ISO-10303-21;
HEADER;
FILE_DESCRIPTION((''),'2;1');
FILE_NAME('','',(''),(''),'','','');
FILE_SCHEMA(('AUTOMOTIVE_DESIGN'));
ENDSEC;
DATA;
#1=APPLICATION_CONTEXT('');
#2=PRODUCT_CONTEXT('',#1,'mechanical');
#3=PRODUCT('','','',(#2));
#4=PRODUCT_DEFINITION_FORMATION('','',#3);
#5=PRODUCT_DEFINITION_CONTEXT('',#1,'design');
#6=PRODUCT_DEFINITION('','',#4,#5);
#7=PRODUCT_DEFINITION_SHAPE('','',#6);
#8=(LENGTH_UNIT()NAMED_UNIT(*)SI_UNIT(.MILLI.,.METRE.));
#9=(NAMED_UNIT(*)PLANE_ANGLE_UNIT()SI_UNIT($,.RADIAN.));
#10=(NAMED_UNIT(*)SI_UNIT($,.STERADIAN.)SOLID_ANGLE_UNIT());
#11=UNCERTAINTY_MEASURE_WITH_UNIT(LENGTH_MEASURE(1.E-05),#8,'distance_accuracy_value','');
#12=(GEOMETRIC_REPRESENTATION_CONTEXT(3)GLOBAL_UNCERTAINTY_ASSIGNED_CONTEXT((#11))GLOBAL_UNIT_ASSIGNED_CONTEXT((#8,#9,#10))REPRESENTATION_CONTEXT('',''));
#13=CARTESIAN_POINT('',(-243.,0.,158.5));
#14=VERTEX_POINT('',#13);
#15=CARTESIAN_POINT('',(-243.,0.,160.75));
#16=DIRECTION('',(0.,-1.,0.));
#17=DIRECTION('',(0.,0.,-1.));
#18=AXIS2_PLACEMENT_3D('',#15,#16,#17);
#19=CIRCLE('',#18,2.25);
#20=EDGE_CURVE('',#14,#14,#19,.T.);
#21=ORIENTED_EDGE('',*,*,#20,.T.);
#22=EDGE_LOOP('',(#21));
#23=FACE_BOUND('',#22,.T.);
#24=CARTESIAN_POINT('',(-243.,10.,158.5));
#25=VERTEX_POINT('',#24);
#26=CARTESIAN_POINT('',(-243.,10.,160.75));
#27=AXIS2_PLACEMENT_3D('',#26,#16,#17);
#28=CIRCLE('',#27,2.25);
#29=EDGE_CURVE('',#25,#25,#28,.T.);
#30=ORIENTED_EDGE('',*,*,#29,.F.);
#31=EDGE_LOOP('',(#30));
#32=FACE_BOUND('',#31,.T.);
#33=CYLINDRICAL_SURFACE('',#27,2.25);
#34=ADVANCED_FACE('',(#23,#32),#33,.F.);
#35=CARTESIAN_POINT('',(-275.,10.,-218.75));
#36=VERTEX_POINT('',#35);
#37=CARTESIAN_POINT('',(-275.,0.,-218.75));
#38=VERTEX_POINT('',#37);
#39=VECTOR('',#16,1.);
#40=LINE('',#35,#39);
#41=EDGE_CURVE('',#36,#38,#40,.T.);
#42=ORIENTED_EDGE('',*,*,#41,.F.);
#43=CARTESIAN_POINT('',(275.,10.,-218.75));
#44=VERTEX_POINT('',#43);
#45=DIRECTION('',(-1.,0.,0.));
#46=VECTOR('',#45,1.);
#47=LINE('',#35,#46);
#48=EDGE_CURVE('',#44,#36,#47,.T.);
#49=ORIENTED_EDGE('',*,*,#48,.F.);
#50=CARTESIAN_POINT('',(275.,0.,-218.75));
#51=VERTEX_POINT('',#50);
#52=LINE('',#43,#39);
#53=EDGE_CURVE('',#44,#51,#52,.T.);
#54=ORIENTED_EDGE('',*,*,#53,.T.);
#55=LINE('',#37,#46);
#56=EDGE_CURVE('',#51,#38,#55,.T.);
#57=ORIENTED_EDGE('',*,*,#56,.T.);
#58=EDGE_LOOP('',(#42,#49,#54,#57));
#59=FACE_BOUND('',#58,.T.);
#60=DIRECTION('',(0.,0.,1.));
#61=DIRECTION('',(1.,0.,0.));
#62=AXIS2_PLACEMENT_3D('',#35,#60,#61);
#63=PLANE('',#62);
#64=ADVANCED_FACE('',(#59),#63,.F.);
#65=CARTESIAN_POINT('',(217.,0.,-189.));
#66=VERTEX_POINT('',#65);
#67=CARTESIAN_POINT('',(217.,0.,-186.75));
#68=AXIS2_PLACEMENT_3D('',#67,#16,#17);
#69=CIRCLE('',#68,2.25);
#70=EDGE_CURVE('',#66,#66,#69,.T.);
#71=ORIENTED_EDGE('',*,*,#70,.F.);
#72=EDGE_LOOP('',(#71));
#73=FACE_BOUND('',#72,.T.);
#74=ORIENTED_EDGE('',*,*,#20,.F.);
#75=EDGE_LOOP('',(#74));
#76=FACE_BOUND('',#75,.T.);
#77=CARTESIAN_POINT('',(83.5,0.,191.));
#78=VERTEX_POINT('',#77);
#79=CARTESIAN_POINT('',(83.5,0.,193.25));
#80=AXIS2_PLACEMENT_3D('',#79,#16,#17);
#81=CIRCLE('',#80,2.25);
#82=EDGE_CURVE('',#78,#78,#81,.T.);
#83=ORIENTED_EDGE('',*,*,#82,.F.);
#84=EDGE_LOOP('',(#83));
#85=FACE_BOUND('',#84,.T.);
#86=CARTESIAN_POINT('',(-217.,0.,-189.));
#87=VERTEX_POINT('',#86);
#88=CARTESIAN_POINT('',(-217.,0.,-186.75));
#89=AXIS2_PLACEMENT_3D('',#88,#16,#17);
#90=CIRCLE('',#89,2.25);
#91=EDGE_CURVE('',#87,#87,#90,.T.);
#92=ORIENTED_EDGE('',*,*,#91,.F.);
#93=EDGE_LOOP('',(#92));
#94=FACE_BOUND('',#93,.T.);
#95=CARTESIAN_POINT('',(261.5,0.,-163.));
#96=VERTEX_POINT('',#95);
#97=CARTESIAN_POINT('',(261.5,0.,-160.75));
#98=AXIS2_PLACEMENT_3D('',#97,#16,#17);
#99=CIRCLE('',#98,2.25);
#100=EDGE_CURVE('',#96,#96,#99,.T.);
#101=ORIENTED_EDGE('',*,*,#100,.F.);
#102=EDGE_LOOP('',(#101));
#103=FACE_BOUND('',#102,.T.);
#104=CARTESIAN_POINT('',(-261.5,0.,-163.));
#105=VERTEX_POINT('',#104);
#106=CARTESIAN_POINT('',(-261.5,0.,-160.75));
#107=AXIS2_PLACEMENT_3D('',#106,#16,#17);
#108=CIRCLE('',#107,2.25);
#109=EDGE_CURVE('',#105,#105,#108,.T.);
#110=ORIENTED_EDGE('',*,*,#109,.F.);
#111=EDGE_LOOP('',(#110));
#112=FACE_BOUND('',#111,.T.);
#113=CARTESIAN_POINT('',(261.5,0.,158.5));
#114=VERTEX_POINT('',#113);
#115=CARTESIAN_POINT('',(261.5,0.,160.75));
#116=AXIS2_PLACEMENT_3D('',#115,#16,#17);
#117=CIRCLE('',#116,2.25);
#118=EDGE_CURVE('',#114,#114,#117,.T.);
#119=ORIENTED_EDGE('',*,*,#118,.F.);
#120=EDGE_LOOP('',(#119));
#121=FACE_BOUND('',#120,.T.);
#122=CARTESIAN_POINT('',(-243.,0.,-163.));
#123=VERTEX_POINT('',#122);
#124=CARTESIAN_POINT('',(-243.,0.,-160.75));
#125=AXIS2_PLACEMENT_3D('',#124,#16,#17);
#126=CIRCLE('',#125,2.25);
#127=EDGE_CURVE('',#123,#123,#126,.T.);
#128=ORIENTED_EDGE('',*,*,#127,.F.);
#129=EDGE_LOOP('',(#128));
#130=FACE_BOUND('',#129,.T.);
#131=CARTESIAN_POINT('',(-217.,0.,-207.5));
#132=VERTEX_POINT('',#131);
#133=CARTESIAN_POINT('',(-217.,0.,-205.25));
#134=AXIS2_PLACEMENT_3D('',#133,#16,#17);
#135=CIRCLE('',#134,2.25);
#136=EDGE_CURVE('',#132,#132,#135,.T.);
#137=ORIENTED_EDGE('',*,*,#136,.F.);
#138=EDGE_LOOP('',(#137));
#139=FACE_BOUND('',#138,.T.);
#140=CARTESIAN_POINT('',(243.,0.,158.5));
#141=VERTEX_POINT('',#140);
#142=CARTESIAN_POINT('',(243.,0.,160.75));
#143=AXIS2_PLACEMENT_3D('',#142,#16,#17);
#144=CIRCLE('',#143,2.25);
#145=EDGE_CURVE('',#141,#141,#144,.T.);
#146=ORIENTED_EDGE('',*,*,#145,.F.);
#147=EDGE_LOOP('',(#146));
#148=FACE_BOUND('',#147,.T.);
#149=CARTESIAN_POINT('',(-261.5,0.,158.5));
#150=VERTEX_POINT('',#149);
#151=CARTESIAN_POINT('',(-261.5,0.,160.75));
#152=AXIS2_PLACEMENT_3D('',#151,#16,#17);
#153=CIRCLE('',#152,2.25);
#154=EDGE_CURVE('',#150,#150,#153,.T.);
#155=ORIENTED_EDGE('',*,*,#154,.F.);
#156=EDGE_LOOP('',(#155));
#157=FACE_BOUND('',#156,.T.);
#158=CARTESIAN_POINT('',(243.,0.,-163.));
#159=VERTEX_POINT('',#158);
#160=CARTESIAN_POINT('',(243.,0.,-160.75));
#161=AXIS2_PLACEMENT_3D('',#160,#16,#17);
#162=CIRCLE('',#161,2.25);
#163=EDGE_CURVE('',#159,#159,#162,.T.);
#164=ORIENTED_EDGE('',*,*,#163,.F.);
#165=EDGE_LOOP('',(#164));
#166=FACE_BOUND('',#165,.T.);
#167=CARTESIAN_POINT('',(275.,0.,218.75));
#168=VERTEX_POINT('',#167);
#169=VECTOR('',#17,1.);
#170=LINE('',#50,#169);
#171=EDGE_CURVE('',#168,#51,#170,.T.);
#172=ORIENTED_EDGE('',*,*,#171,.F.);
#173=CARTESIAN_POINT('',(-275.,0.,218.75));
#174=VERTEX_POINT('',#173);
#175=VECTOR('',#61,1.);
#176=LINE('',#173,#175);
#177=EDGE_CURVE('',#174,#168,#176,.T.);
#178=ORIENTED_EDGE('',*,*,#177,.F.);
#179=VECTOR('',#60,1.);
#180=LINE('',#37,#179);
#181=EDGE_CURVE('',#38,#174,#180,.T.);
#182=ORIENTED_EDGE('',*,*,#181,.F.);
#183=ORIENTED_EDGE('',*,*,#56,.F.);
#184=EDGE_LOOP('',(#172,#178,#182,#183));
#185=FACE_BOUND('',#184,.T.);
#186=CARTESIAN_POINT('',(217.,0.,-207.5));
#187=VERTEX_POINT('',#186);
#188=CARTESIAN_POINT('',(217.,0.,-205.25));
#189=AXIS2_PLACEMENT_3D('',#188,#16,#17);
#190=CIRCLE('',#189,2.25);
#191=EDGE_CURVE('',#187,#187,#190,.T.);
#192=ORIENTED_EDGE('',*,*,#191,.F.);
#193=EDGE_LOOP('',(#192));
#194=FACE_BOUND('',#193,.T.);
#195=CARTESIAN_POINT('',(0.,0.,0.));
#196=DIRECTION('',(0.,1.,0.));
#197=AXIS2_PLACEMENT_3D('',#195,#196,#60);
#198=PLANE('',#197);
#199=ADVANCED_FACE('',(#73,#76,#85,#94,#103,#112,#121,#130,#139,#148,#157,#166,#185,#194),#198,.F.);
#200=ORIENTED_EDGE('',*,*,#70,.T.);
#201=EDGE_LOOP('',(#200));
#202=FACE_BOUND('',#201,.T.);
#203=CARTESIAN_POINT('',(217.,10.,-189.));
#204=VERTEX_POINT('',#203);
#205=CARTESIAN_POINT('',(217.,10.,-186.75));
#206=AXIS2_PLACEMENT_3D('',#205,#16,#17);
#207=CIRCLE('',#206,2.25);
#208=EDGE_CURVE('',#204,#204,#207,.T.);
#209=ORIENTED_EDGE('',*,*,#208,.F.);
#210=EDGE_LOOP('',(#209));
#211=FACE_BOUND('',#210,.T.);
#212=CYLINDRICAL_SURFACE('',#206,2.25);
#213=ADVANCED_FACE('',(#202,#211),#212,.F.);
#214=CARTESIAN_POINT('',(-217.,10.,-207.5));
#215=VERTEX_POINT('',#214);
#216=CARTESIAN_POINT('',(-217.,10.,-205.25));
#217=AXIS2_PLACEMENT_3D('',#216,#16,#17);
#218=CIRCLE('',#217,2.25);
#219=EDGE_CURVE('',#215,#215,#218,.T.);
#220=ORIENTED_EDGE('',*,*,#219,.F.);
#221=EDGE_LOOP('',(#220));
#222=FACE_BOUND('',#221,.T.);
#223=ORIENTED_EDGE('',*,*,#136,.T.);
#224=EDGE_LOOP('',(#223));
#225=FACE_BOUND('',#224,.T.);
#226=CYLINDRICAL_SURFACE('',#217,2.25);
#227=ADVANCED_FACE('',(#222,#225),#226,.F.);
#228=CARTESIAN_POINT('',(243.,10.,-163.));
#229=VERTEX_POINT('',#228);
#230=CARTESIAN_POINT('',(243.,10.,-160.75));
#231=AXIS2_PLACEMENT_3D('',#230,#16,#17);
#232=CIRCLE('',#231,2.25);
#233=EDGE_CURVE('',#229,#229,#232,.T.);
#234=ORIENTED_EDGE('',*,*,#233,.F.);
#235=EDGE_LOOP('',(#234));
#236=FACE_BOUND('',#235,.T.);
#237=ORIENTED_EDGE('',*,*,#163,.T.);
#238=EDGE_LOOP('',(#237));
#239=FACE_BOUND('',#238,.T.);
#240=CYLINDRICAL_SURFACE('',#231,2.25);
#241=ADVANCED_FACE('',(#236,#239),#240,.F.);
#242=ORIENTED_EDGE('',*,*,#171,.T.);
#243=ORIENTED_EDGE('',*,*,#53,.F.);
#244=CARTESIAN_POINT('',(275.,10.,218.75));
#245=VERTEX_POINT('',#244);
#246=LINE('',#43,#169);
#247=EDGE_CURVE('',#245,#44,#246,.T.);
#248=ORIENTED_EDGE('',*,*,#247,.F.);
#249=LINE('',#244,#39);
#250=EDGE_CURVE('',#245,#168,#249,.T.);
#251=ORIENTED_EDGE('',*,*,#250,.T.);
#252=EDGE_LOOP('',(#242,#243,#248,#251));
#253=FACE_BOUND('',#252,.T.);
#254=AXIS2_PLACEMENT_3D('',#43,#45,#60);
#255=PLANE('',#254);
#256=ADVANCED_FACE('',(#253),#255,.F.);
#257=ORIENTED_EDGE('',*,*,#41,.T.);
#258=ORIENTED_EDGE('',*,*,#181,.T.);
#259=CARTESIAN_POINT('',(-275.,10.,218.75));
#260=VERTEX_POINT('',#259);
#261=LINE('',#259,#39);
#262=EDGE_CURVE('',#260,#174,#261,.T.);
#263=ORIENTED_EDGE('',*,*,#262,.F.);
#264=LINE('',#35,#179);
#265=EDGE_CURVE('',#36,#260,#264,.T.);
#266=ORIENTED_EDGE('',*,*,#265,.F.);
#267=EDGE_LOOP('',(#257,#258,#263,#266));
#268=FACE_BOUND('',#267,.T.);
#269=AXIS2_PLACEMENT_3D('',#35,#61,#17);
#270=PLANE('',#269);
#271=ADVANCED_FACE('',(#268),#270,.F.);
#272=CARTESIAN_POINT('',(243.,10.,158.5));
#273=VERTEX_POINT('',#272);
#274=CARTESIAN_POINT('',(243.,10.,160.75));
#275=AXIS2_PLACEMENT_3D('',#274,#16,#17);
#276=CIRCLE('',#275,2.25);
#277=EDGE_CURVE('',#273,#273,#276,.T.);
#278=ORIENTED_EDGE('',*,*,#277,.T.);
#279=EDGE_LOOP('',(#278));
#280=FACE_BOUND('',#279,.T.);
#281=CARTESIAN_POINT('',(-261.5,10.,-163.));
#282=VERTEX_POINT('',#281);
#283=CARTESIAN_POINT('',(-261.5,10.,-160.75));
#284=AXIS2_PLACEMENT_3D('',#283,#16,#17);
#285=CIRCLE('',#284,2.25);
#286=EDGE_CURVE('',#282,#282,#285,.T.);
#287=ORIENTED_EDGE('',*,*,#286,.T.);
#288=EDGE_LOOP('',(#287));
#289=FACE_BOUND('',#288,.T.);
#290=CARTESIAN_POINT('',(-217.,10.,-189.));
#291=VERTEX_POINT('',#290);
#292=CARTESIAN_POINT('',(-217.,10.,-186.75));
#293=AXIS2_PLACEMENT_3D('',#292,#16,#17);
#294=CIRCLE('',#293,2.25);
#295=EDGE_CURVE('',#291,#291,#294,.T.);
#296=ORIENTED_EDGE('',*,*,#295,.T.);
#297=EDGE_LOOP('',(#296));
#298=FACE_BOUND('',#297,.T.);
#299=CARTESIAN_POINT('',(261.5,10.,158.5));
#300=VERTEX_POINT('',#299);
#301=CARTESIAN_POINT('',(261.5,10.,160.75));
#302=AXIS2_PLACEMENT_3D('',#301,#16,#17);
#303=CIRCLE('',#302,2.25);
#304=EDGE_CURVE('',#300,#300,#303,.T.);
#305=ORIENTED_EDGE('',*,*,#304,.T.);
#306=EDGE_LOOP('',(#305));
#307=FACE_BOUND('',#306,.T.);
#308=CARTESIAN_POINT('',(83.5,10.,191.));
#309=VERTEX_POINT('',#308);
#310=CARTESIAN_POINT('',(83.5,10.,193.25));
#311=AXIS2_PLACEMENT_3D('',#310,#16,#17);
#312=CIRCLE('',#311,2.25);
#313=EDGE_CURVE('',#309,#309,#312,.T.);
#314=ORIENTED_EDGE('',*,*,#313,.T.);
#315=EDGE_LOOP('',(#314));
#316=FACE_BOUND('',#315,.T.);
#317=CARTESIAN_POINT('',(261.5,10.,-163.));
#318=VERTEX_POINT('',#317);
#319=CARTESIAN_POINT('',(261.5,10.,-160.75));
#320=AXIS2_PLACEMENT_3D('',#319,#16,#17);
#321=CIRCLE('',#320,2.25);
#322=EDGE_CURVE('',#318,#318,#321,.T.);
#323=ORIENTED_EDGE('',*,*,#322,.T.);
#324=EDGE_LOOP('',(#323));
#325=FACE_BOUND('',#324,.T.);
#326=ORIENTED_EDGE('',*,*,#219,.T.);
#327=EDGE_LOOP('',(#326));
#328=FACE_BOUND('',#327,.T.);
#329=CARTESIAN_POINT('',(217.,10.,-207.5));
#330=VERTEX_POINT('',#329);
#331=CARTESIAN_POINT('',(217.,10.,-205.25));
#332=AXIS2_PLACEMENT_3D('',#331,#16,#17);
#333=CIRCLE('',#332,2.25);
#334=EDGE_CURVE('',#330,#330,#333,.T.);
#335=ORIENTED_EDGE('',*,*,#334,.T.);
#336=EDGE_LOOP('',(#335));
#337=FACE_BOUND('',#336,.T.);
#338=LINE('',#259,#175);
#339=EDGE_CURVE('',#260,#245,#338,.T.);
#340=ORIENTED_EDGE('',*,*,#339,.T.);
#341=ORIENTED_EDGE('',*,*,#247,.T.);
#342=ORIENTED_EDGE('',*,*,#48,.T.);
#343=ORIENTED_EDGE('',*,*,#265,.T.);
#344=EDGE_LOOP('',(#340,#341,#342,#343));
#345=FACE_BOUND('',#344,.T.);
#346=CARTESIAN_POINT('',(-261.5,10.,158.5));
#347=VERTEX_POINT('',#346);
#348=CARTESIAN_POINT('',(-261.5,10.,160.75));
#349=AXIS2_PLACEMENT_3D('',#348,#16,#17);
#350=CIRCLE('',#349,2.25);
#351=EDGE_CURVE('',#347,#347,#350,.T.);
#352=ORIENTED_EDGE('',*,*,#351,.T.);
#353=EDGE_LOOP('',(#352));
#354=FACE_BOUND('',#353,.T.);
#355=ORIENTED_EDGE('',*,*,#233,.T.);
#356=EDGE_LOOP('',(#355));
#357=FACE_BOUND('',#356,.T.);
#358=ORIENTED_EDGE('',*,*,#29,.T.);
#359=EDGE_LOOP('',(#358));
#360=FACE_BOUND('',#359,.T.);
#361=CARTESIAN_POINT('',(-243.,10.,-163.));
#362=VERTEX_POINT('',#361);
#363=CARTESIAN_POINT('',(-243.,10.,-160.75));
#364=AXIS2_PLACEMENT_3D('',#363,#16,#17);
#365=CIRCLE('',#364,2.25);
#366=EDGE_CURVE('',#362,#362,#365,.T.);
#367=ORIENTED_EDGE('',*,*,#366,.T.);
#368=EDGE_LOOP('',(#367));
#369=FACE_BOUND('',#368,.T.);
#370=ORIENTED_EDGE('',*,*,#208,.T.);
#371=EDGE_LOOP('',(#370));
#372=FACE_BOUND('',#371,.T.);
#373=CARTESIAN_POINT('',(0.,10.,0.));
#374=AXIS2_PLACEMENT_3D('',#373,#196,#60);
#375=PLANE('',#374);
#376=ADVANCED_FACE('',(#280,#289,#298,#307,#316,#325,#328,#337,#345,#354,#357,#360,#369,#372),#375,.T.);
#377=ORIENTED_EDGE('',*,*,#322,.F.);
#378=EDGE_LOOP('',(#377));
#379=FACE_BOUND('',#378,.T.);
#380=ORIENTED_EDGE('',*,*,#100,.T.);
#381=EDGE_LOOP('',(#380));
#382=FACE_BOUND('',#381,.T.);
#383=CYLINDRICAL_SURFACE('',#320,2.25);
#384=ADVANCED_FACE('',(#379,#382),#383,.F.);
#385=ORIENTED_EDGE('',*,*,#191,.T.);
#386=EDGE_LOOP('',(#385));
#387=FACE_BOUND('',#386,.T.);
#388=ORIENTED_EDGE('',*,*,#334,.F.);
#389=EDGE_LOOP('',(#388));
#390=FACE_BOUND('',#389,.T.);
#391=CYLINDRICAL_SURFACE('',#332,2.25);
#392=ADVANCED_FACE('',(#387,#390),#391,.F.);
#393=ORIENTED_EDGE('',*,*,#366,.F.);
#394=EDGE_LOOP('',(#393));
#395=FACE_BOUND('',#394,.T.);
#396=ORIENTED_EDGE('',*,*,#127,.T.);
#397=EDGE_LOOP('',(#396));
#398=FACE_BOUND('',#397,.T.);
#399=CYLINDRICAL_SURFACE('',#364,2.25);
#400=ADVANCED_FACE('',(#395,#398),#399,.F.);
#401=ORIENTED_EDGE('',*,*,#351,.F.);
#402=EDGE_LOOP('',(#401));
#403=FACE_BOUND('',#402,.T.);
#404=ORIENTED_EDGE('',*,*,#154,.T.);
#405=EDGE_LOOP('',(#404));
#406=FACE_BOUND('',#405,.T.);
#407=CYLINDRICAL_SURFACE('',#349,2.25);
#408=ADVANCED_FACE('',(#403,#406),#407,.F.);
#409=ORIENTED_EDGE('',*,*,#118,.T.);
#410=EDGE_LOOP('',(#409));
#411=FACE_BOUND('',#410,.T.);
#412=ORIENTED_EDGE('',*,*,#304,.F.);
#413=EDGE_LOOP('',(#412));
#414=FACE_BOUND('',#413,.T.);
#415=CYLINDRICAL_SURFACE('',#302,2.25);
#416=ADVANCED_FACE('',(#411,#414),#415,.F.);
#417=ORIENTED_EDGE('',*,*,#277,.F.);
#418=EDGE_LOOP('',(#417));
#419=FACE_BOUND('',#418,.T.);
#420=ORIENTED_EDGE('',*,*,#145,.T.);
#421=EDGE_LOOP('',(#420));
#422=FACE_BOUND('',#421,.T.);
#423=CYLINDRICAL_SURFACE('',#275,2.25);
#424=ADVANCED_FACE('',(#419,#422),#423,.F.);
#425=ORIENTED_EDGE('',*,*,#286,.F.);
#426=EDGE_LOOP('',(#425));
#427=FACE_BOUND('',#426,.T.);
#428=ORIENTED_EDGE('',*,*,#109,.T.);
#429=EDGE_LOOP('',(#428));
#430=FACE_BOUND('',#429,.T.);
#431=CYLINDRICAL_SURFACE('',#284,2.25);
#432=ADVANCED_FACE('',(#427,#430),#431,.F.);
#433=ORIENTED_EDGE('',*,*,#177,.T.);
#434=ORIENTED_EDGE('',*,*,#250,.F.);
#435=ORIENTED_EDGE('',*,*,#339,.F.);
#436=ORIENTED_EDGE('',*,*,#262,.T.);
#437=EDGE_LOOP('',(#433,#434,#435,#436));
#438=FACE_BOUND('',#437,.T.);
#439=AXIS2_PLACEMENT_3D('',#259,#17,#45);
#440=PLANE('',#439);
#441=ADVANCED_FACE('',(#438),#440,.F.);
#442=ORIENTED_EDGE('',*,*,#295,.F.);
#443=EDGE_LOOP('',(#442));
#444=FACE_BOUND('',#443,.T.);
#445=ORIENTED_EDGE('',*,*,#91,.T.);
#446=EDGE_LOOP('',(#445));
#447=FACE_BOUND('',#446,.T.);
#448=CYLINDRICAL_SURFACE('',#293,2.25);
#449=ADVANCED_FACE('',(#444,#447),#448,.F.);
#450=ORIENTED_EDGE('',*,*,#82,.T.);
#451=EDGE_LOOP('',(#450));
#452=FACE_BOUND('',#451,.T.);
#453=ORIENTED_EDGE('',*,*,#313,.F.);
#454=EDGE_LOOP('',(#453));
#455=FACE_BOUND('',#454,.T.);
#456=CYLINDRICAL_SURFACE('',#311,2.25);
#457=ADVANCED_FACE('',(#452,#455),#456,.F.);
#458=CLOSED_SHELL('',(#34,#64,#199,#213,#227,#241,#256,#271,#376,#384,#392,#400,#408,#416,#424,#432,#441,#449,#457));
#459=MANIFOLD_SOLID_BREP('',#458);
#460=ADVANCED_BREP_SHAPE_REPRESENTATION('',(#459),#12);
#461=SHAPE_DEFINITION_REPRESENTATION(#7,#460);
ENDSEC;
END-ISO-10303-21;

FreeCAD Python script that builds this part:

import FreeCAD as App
import Part
import Sketcher

V = App.Vector
Q = App.Units.Quantity


def add_polygon(sketch, points):
    """Adds a closed chain of lines whose ends are joined by coincident constraints."""
    first, n = sketch.GeometryCount, len(points)
    for a, b in zip(points, points[1:] + points[:1]):
        sketch.addGeometry(Part.LineSegment(App.Vector(*a, 0), App.Vector(*b, 0)), False)
    for i in range(n):
        sketch.addConstraint(Sketcher.Constraint("Coincident", first + i, 2, first + (i + 1) % n, 1))

doc = App.newDocument("Part")
params = doc.addObject("Spreadsheet::Sheet", "Params")
for row, (alias, value) in enumerate([
    ("sketch1_width", "550 mm"),
    ("sketch1_height", "437.5 mm"),
    ("pad1_length", "10 mm"),
    ("sketch2_diameter", "4.5 mm"),
    ("pocket1_length", "10 mm"),
], start=1):
    params.set(f"A{row}", alias)
    params.set(f"B{row}", "=" + value)
    params.setAlias(f"B{row}", alias)

body = doc.addObject("PartDesign::Body", "Body")

sketch1 = body.newObject("Sketcher::SketchObject", "Sketch")
sketch1.AttachmentSupport = (doc.getObject("XZ_Plane"), [""])
sketch1.MapMode = "FlatFace"
add_polygon(sketch1, [(-275, -219), (-275, 219), (275, 219), (275, -219)])
sketch1.addConstraint([
    Sketcher.Constraint("Vertical", 0),
    Sketcher.Constraint("Horizontal", 1),
    Sketcher.Constraint("Vertical", 2),
    Sketcher.Constraint("Horizontal", 3),
    Sketcher.Constraint("Symmetric", 0, 2, 2, 2, -1, 1),
    Sketcher.Constraint("DistanceX", 1, 1, 1, 2, Q("550 mm")),
    Sketcher.Constraint("DistanceY", 0, 1, 0, 2, Q("437.5 mm")),
])
sketch1.setExpression("Constraints[9]", "Params.sketch1_width")
sketch1.setExpression("Constraints[10]", "Params.sketch1_height")
pad1 = body.newObject("PartDesign::Pad", "Pad")
pad1.Profile = sketch1
pad1.setExpression("Length", "Params.pad1_length")
pad1.Reversed = True

sketch2 = body.newObject("Sketcher::SketchObject", "Sketch001")
sketch2.AttachmentSupport = (doc.getObject("XZ_Plane"), [""])
sketch2.MapMode = "FlatFace"
sketch2.addGeometry([
    Part.Circle(V(217, -205.2, 0), V(0, 0, 1), 2.2),
    Part.Circle(V(217, -186.8, 0), V(0, 0, 1), 2.2),
    Part.Circle(V(243, -160.8, 0), V(0, 0, 1), 2.2),
    Part.Circle(V(261.5, -160.8, 0), V(0, 0, 1), 2.2),
    Part.Circle(V(-217, -205.2, 0), V(0, 0, 1), 2.2),
    Part.Circle(V(-217, -186.8, 0), V(0, 0, 1), 2.2),
    Part.Circle(V(-243, -160.8, 0), V(0, 0, 1), 2.2),
    Part.Circle(V(-261.5, -160.8, 0), V(0, 0, 1), 2.2),
    Part.Circle(V(-261.5, 160.8, 0), V(0, 0, 1), 2.2),
    Part.Circle(V(-243, 160.8, 0), V(0, 0, 1), 2.2),
    Part.Circle(V(261.5, 160.8, 0), V(0, 0, 1), 2.2),
    Part.Circle(V(243, 160.8, 0), V(0, 0, 1), 2.2),
    Part.Circle(V(83.5, 193.2, 0), V(0, 0, 1), 2.2),
], False)
sketch2.addConstraint([
    Sketcher.Constraint("Equal", 0, 1),
    Sketcher.Constraint("Equal", 1, 2),
    Sketcher.Constraint("Equal", 2, 3),
    Sketcher.Constraint("Equal", 3, 4),
    Sketcher.Constraint("Equal", 4, 5),
    Sketcher.Constraint("Equal", 5, 6),
    Sketcher.Constraint("Equal", 6, 7),
    Sketcher.Constraint("Equal", 7, 8),
    Sketcher.Constraint("Equal", 8, 9),
    Sketcher.Constraint("Equal", 9, 10),
    Sketcher.Constraint("Equal", 10, 11),
    Sketcher.Constraint("Equal", 11, 12),
    Sketcher.Constraint("Symmetric", 3, 3, 8, 3, -1, 1),
    Sketcher.Constraint("Symmetric", 2, 3, 9, 3, -1, 1),
    Sketcher.Constraint("Symmetric", 7, 3, 10, 3, -1, 1),
    Sketcher.Constraint("Symmetric", 6, 3, 11, 3, -1, 1),
    Sketcher.Constraint("Symmetric", 0, 3, 4, 3, -2),
    Sketcher.Constraint("Symmetric", 1, 3, 5, 3, -2),
    Sketcher.Constraint("Symmetric", 2, 3, 6, 3, -2),
    Sketcher.Constraint("Symmetric", 3, 3, 7, 3, -2),
    Sketcher.Constraint("Horizontal", 2, 3, 3, 3),
    Sketcher.Constraint("Vertical", 0, 3, 1, 3),
    Sketcher.Constraint("Diameter", 0, Q("4.5 mm")),
    Sketcher.Constraint("DistanceX", -1, 1, 0, 3, Q("217 mm")),
    Sketcher.Constraint("DistanceX", -1, 1, 2, 3, Q("243 mm")),
    Sketcher.Constraint("DistanceY", 1, 3, 2, 3, Q("26 mm")),
    Sketcher.Constraint("DistanceY", 4, 3, 8, 3, Q("366 mm")),
    Sketcher.Constraint("DistanceX", 12, 3, 10, 3, Q("178 mm")),
    Sketcher.Constraint("DistanceX", 8, 3, 12, 3, Q("345 mm")),
    Sketcher.Constraint("DistanceY", 2, 3, 12, 3, Q("354 mm")),
    Sketcher.Constraint("DistanceY", 0, 3, 1, 3, Q("18.5 mm")),
])
sketch2.setExpression("Constraints[22]", "Params.sketch2_diameter")
pocket1 = body.newObject("PartDesign::Pocket", "Pocket")
pocket1.Profile = sketch2
pocket1.setExpression("Length", "Params.pocket1_length")

doc.recompute()
